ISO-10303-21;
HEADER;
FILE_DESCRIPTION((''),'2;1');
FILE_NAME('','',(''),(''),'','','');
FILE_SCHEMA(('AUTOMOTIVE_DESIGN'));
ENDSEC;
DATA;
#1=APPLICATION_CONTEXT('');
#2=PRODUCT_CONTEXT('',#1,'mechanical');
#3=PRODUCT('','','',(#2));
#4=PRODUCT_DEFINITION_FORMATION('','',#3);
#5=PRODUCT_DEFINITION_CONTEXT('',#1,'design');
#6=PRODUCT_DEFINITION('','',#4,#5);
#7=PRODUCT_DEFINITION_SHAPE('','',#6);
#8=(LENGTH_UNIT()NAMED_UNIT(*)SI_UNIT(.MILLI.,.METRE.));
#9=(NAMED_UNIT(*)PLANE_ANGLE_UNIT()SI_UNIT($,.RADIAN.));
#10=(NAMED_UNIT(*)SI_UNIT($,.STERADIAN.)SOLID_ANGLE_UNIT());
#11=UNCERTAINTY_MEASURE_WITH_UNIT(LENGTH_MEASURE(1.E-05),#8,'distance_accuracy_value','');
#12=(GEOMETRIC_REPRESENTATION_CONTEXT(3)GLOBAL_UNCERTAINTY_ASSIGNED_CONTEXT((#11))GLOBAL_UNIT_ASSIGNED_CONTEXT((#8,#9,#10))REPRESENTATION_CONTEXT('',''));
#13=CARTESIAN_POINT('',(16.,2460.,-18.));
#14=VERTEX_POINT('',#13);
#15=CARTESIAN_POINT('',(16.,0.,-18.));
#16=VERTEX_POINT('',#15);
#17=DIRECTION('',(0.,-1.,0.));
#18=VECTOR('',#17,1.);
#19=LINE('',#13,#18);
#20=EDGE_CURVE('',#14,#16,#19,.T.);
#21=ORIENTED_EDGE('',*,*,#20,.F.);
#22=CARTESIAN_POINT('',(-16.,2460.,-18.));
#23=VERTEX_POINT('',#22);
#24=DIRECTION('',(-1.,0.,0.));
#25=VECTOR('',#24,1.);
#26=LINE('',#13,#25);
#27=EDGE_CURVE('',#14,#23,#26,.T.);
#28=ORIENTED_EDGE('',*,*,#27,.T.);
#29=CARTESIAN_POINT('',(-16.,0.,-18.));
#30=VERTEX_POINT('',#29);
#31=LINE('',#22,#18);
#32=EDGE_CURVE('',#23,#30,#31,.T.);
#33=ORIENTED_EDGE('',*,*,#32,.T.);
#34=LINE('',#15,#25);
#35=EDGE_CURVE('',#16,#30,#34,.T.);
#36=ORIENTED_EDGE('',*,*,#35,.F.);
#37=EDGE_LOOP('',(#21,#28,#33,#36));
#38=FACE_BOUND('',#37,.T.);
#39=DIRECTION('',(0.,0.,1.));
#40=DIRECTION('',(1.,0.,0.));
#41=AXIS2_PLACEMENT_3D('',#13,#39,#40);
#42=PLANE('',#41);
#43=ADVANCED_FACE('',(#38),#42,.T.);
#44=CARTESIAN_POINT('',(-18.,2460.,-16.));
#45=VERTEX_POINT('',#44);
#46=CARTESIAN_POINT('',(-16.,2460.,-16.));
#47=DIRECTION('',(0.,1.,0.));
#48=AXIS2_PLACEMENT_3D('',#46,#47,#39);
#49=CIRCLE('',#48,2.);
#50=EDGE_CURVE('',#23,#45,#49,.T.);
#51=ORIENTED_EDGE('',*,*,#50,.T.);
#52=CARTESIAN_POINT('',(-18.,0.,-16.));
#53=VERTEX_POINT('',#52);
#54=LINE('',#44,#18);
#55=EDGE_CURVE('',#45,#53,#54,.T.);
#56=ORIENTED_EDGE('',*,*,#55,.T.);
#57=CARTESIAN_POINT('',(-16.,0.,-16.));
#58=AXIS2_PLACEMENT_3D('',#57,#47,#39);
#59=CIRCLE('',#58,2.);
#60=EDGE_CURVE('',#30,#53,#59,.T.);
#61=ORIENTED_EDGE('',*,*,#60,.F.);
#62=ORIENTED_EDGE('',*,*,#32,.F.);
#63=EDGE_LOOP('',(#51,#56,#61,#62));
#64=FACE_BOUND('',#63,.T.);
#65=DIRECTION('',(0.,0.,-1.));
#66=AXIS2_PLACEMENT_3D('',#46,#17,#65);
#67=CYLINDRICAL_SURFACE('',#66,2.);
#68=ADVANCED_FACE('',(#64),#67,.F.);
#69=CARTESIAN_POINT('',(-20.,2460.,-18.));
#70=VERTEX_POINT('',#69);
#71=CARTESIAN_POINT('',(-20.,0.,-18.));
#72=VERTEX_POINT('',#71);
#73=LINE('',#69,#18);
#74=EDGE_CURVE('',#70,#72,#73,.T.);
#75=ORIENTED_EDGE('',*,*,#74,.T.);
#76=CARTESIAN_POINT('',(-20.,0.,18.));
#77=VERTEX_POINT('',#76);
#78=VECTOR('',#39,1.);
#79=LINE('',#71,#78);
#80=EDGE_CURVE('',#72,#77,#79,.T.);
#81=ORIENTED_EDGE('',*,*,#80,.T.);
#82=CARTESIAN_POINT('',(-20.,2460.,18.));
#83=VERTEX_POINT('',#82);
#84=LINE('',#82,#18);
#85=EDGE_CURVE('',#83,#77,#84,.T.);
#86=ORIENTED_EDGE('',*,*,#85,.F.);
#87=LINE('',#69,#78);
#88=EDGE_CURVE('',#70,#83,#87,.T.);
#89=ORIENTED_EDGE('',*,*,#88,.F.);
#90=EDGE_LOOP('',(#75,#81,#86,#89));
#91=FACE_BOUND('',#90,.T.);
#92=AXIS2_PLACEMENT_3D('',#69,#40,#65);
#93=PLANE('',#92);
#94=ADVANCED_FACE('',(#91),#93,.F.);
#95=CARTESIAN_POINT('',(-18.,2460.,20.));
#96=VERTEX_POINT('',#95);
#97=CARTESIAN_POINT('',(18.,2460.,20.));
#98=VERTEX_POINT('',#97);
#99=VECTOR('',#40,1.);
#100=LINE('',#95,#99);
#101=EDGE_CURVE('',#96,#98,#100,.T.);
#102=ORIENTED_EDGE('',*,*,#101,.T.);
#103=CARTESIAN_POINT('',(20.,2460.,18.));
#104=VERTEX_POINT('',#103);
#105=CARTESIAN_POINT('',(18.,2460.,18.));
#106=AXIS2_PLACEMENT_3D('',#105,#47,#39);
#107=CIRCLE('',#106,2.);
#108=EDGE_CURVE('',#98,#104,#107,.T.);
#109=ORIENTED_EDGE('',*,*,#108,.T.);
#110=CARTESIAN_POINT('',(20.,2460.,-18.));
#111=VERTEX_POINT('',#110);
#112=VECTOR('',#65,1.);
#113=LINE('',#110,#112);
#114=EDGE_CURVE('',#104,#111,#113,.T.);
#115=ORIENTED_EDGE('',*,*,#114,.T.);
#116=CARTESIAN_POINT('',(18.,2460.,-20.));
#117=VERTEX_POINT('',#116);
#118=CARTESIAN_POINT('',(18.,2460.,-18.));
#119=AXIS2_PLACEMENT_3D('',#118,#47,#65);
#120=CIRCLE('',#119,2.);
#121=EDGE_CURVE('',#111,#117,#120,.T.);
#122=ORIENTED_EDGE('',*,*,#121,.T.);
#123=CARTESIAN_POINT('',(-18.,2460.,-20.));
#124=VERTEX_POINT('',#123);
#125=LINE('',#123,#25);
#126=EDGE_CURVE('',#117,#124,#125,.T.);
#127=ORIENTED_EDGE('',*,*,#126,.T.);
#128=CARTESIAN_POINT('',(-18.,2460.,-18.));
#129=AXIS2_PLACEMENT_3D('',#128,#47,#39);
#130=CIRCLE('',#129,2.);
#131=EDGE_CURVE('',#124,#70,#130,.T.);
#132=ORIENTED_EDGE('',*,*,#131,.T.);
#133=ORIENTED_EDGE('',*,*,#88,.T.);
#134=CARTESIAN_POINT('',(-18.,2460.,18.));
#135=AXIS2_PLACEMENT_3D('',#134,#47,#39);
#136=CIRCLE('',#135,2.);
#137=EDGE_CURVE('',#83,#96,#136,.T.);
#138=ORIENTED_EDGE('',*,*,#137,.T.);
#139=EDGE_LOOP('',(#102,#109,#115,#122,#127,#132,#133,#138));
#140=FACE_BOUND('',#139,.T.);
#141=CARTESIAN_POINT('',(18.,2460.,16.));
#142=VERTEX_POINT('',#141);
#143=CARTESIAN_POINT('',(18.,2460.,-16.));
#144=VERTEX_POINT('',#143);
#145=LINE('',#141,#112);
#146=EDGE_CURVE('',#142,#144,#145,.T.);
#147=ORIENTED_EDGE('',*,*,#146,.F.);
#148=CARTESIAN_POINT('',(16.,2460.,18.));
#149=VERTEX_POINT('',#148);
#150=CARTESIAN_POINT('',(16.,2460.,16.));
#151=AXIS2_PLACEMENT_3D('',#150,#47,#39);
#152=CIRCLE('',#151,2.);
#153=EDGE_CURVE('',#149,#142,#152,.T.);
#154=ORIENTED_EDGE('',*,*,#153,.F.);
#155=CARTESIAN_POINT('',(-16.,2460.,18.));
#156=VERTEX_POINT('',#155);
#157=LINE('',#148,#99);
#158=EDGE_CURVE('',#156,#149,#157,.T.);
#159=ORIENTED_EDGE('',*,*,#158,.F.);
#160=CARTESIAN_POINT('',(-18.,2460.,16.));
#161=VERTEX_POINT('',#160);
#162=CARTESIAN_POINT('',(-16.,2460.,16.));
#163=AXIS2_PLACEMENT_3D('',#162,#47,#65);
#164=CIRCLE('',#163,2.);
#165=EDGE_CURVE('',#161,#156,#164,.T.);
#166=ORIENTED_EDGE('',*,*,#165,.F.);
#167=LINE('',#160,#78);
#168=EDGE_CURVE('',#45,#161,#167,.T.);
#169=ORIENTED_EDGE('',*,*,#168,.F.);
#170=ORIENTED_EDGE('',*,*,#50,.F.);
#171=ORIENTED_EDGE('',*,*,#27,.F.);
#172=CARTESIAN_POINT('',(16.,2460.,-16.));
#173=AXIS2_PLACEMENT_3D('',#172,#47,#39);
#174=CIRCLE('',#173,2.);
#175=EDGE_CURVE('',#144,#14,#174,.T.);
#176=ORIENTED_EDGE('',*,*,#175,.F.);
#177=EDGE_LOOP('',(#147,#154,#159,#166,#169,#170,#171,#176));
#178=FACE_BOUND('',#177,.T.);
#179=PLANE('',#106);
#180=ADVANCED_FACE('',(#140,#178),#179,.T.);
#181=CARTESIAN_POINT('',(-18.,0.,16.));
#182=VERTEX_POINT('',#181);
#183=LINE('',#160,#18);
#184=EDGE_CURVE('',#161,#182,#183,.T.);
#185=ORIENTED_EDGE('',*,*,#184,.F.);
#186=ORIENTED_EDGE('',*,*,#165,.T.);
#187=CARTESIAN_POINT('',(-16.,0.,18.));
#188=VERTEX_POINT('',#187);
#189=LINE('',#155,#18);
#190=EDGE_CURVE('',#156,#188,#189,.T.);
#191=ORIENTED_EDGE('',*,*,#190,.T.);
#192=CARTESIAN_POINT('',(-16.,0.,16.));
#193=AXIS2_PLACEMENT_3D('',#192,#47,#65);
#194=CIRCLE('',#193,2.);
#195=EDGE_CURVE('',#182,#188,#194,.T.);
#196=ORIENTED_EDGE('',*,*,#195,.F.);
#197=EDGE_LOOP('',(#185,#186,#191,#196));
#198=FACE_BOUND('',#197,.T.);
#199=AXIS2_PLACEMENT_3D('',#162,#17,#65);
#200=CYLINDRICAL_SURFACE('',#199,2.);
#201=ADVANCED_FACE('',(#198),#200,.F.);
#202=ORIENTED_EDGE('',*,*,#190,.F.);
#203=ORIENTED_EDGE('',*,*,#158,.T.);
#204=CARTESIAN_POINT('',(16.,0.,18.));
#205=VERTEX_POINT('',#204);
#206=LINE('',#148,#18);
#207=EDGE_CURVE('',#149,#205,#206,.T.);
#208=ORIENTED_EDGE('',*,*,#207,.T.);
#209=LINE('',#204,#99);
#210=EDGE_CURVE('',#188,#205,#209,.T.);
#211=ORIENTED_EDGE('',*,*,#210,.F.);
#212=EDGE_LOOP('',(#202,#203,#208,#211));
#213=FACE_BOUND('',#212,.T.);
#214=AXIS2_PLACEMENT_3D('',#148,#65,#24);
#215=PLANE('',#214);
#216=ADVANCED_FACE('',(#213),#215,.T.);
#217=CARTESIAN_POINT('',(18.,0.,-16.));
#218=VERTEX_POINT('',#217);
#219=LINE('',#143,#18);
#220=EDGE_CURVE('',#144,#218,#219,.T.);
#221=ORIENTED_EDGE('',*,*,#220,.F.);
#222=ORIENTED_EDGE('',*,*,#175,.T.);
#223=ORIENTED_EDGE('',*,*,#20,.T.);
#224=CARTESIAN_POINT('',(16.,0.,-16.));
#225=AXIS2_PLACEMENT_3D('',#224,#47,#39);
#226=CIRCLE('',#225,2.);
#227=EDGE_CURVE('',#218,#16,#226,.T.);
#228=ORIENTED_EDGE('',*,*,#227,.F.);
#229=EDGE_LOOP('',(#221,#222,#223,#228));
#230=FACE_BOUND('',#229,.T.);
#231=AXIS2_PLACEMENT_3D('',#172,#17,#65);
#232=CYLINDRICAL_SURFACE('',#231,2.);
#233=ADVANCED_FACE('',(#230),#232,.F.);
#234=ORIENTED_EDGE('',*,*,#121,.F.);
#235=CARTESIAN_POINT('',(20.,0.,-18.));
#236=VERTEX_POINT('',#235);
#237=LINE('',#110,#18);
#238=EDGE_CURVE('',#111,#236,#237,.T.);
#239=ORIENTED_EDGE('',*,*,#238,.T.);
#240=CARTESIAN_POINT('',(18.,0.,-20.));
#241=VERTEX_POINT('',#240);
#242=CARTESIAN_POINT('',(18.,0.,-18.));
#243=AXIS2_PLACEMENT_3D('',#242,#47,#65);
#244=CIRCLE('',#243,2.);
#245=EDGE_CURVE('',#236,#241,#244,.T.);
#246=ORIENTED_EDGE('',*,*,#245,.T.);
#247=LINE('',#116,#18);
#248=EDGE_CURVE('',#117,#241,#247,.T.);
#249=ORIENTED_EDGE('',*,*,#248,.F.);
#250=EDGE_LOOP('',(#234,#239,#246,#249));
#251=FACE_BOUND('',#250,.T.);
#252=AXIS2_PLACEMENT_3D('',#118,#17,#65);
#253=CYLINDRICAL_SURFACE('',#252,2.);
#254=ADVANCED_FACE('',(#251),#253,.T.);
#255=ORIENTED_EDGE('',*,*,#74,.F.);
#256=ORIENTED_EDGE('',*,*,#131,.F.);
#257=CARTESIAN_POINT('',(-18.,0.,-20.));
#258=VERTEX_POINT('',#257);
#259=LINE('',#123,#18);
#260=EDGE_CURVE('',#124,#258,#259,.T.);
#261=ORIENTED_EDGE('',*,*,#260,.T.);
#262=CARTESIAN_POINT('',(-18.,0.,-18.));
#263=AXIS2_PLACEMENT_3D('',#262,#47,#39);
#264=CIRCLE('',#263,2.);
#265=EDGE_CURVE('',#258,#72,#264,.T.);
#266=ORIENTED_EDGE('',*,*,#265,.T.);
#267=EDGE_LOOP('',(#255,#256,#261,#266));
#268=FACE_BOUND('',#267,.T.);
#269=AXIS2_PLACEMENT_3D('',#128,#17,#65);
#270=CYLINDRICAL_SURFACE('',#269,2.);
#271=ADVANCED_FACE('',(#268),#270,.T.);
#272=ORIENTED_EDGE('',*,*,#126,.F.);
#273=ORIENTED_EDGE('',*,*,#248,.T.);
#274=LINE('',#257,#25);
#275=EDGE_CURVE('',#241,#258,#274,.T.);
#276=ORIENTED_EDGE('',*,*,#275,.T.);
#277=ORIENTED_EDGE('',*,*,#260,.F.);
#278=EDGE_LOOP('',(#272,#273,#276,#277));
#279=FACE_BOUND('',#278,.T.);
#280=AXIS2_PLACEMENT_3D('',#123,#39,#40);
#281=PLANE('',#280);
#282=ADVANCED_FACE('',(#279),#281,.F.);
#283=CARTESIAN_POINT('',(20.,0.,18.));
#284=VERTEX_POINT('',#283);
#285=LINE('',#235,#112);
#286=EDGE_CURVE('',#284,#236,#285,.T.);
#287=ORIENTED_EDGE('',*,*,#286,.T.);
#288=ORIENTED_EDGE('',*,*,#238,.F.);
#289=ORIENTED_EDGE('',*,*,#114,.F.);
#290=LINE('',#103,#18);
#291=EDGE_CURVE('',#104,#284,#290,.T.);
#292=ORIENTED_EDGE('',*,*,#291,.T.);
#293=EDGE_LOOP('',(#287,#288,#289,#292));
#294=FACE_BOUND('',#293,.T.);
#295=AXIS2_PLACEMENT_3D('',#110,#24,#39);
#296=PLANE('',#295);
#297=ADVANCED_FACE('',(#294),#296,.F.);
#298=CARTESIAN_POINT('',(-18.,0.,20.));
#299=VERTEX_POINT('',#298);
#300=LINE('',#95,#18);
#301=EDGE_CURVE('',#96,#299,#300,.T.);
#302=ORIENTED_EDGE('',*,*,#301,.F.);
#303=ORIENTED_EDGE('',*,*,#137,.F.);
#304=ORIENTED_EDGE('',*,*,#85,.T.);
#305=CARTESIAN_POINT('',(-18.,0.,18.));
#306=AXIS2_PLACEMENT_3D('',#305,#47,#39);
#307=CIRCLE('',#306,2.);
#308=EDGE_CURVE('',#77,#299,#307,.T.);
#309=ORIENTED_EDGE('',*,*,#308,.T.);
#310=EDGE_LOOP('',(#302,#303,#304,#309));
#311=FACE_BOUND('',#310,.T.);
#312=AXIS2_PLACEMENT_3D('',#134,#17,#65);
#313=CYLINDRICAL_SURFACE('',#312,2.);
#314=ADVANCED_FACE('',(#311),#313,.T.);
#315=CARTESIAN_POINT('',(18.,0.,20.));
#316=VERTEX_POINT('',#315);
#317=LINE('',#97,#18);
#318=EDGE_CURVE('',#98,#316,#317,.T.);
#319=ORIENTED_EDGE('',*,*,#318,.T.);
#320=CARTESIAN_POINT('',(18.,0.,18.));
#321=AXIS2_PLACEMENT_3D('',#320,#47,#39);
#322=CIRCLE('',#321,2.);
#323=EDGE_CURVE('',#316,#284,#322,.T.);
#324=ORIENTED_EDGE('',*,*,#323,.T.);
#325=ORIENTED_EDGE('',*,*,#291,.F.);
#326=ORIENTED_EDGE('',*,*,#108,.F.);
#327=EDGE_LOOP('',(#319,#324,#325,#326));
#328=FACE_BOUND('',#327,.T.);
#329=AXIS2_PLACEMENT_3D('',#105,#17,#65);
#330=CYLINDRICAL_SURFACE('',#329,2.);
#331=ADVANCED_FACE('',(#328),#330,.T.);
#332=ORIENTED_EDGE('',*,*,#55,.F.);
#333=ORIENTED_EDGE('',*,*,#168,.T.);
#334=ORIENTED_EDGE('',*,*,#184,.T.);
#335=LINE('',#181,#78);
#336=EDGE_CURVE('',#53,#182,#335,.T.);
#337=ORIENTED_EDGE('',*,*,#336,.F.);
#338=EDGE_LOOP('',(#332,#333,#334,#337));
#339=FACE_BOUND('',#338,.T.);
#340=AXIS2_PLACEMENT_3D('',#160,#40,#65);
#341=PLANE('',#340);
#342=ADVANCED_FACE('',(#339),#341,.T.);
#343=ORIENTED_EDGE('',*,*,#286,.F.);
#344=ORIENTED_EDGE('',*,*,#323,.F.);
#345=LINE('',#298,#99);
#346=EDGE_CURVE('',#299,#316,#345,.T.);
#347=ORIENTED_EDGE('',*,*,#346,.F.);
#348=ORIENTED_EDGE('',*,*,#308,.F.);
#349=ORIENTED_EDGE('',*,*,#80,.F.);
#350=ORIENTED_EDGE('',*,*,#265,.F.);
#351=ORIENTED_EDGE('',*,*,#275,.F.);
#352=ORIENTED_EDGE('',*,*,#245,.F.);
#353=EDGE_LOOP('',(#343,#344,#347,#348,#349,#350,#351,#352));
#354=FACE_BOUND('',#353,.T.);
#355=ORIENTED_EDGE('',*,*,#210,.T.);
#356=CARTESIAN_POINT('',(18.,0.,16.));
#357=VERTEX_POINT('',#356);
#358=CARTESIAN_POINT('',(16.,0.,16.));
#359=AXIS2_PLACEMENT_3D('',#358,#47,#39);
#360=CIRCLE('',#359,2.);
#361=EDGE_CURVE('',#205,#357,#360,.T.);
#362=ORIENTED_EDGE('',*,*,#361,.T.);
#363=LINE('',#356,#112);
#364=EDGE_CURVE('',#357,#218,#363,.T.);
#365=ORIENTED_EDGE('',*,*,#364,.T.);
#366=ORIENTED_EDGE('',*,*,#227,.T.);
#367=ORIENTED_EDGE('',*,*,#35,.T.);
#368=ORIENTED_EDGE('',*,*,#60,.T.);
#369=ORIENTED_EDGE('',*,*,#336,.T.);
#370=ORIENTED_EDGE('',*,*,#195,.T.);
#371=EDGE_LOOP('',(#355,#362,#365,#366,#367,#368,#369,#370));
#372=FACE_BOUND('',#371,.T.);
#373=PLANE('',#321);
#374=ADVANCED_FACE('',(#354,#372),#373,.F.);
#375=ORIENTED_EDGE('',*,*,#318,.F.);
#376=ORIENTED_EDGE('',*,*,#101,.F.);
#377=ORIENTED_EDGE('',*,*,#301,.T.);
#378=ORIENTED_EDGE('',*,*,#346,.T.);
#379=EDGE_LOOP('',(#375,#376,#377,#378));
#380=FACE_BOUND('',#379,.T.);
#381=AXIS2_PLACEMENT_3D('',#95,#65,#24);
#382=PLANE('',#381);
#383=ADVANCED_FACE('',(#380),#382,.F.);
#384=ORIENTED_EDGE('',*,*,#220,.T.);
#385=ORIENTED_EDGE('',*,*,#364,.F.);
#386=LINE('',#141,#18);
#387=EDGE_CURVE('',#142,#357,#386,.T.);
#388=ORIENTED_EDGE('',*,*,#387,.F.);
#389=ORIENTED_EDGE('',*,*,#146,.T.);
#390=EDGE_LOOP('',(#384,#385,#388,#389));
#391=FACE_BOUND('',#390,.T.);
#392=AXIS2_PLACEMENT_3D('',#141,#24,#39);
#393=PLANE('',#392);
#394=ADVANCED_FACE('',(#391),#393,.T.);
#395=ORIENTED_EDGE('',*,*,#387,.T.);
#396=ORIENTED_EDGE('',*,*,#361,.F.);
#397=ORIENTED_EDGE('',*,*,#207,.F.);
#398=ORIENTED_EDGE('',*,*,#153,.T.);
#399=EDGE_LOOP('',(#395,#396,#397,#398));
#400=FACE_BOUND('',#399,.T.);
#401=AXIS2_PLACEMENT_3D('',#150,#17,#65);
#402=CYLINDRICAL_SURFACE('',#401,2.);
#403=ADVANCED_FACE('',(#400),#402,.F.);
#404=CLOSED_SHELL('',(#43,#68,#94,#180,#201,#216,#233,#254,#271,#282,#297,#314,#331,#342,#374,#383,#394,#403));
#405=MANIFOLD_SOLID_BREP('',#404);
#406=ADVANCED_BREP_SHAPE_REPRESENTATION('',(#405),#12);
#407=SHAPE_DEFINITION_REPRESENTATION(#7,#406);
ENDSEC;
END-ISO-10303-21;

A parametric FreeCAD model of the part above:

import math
import FreeCAD as App
import Part
import Sketcher

V = App.Vector

doc = App.newDocument("Part")
body = doc.addObject("PartDesign::Body", "Body")

# Sketch on XZ plane
sketch1 = body.newObject("Sketcher::SketchObject", "Sketch")
sketch1.AttachmentSupport = (doc.getObject("XZ_Plane"), [""])
sketch1.MapMode = "FlatFace"
sketch1.addGeometry([
    Part.LineSegment(V(18, -20, 0), V(-18, -20, 0)),  # 0
    Part.ArcOfCircle(Part.Circle(V(-18, -18, 0), V(0, 0, 1), 2), math.radians(-180), math.radians(-90)),  # 1
    Part.LineSegment(V(-20, -18, 0), V(-20, 18, 0)),  # 2
    Part.ArcOfCircle(Part.Circle(V(-18, 18, 0), V(0, 0, 1), 2), math.radians(90), math.radians(180)),  # 3
    Part.LineSegment(V(-18, 20, 0), V(18, 20, 0)),  # 4
    Part.ArcOfCircle(Part.Circle(V(18, 18, 0), V(0, 0, 1), 2), math.radians(0), math.radians(90)),  # 5
    Part.LineSegment(V(20, 18, 0), V(20, -18, 0)),  # 6
    Part.ArcOfCircle(Part.Circle(V(18, -18, 0), V(0, 0, 1), 2), math.radians(-90), math.radians(0)),  # 7
    Part.LineSegment(V(16, 18, 0), V(-16, 18, 0)),  # 8
    Part.ArcOfCircle(Part.Circle(V(-16, 16, 0), V(0, 0, 1), 2), math.radians(90), math.radians(180)),  # 9
    Part.LineSegment(V(-18, 16, 0), V(-18, -16, 0)),  # 10
    Part.ArcOfCircle(Part.Circle(V(-16, -16, 0), V(0, 0, 1), 2), math.radians(-180), math.radians(-90)),  # 11
    Part.LineSegment(V(-16, -18, 0), V(16, -18, 0)),  # 12
    Part.ArcOfCircle(Part.Circle(V(16, -16, 0), V(0, 0, 1), 2), math.radians(-90), math.radians(0)),  # 13
    Part.LineSegment(V(18, -16, 0), V(18, 16, 0)),  # 14
    Part.ArcOfCircle(Part.Circle(V(16, 16, 0), V(0, 0, 1), 2), math.radians(0), math.radians(90)),  # 15
], False)
sketch1.addConstraint([
    Sketcher.Constraint("Tangent", 0, 2, 1, 2),
    Sketcher.Constraint("Tangent", 1, 1, 2, 1),
    Sketcher.Constraint("Tangent", 2, 2, 3, 2),
    Sketcher.Constraint("Tangent", 3, 1, 4, 1),
    Sketcher.Constraint("Tangent", 4, 2, 5, 2),
    Sketcher.Constraint("Tangent", 5, 1, 6, 1),
    Sketcher.Constraint("Tangent", 6, 2, 7, 2),
    Sketcher.Constraint("Tangent", 7, 1, 0, 1),
    Sketcher.Constraint("Tangent", 8, 2, 9, 1),
    Sketcher.Constraint("Tangent", 9, 2, 10, 1),
    Sketcher.Constraint("Tangent", 10, 2, 11, 1),
    Sketcher.Constraint("Tangent", 11, 2, 12, 1),
    Sketcher.Constraint("Tangent", 12, 2, 13, 1),
    Sketcher.Constraint("Tangent", 13, 2, 14, 1),
    Sketcher.Constraint("Tangent", 14, 2, 15, 1),
    Sketcher.Constraint("Tangent", 15, 2, 8, 1),
    Sketcher.Constraint("Horizontal", 0),
    Sketcher.Constraint("Vertical", 2),
    Sketcher.Constraint("Horizontal", 4),
    Sketcher.Constraint("Vertical", 6),
    Sketcher.Constraint("Horizontal", 8),
    Sketcher.Constraint("Vertical", 10),
    Sketcher.Constraint("Horizontal", 12),
    Sketcher.Constraint("Vertical", 14),
    Sketcher.Constraint("Equal", 1, 3),
    Sketcher.Constraint("Equal", 3, 5),
    Sketcher.Constraint("Equal", 5, 7),
    Sketcher.Constraint("Equal", 7, 9),
    Sketcher.Constraint("Equal", 9, 11),
    Sketcher.Constraint("Equal", 11, 13),
    Sketcher.Constraint("Equal", 13, 15),
    Sketcher.Constraint("Symmetric", 1, 3, 5, 3, -1, 1),
    Sketcher.Constraint("Symmetric", 9, 3, 13, 3, -1, 1),
    Sketcher.Constraint("Horizontal", 5, 1, 8, 2),
    Sketcher.Constraint("Vertical", 3, 1, 9, 2),
    Sketcher.Constraint("Equal", 4, 2),
    Sketcher.Constraint("Radius", 1, 2.0),
    Sketcher.Constraint("DistanceX", 0, 2, 0, 1, 36.0),
])
pad1 = body.newObject("PartDesign::Pad", "Pad")
pad1.Profile = sketch1
pad1.Length = 2460
pad1.Reversed = True

doc.recompute()
